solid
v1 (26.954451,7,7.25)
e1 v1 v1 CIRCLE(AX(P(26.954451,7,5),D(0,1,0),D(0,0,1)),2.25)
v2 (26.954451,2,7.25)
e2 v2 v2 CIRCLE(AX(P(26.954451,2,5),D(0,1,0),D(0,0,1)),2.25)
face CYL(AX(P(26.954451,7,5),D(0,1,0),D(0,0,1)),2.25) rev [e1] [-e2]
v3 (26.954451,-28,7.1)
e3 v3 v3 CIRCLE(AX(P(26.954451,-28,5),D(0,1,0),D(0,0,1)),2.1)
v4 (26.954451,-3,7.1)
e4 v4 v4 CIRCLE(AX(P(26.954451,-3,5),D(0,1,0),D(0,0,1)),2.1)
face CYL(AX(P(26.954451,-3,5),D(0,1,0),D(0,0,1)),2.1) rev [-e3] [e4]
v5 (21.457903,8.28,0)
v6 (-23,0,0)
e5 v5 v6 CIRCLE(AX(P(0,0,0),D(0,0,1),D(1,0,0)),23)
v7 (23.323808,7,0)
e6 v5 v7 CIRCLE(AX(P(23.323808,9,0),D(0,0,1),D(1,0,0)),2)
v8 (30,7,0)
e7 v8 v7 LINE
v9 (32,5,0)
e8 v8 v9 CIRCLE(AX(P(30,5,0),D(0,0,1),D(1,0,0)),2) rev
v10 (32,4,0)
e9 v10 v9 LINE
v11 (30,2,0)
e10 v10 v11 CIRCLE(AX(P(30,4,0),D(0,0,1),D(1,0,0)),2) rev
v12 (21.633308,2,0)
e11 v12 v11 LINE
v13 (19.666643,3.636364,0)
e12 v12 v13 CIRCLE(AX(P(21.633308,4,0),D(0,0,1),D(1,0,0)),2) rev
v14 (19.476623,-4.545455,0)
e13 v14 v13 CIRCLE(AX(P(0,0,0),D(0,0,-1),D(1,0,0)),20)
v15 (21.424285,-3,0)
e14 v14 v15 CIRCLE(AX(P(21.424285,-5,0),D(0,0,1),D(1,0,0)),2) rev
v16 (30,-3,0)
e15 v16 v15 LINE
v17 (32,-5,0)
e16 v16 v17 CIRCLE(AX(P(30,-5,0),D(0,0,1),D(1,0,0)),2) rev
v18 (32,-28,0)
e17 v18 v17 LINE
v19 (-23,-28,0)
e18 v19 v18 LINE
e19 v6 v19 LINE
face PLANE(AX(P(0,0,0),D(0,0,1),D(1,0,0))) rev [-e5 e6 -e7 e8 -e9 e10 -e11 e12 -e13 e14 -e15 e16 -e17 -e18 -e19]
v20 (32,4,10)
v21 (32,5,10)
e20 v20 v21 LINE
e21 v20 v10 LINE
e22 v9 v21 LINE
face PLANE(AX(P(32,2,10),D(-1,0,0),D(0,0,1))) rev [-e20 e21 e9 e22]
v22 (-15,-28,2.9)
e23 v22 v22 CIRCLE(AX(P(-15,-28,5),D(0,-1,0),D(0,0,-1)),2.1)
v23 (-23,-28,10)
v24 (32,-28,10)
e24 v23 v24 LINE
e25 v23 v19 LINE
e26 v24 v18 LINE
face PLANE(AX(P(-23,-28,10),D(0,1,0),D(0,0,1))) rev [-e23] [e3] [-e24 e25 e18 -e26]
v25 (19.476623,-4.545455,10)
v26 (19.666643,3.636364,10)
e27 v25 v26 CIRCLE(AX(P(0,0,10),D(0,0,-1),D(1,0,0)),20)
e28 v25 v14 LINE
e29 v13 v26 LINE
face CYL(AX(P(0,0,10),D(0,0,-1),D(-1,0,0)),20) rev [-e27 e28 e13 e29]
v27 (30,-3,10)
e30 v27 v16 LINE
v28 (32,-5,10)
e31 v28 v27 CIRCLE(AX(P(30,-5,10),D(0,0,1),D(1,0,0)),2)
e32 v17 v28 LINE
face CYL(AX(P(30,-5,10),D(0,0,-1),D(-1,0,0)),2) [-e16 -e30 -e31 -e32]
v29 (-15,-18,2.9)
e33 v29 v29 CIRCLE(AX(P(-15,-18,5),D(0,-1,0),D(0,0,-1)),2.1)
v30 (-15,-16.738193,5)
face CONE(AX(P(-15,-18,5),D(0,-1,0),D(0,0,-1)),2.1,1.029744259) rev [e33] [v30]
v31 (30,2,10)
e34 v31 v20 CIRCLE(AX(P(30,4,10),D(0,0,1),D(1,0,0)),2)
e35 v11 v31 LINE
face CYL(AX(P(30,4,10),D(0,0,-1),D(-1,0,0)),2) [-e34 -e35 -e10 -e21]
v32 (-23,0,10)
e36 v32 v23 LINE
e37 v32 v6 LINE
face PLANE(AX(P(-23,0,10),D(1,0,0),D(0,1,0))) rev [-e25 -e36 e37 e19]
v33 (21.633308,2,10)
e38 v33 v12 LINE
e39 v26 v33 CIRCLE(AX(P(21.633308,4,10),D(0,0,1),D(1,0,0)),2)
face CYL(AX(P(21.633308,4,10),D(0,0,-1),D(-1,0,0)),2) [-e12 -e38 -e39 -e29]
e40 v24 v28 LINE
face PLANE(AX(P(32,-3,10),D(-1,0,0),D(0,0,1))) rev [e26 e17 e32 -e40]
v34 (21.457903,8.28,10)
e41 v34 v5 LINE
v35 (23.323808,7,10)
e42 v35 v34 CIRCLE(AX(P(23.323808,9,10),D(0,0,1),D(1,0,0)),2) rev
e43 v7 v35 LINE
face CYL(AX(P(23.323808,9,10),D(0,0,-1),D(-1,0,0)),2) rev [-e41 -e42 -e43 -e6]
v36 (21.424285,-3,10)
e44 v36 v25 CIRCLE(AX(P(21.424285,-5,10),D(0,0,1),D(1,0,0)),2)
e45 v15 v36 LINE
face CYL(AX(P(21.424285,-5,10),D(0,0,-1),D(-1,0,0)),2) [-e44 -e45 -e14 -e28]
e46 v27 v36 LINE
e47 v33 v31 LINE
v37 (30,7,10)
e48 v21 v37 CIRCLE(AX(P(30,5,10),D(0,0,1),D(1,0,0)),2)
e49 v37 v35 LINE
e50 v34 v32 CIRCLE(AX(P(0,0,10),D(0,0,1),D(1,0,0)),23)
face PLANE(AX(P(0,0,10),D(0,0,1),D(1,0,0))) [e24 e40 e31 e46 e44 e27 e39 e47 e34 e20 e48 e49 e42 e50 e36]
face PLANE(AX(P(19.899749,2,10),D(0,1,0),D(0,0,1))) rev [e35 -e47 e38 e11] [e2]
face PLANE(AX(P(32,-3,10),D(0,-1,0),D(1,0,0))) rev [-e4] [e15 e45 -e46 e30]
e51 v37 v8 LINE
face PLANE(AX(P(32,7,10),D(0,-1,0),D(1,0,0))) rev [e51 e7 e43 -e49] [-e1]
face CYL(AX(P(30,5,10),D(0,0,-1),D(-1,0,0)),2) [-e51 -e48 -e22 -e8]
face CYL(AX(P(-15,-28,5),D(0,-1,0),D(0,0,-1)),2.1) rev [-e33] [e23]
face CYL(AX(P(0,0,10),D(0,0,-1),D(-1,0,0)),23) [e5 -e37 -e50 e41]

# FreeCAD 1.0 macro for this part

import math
import FreeCAD as App
import Part
import Sketcher
from FreeCAD import Vector
Q = App.Units.Quantity


def edges_at(feature, points):
    """Names of the edges that pass closest to the given points."""
    edges = feature.Shape.Edges
    near = lambda p: min(range(len(edges)), key=lambda i: edges[i].distToShape(Part.Vertex(*p))[0])
    return sorted({f"Edge{near(p) + 1}" for p in points})

doc = App.newDocument("Part")
params = doc.addObject("Spreadsheet::Sheet", "Params")
for row, (alias, value) in enumerate([
    ("sketch1_radius", "20 mm"),
    ("sketch1_radius2", "23 mm"),
    ("sketch1_width", "55 mm"),
    ("sketch1_height", "5 mm"),
    ("sketch1_height2", "28 mm"),
    ("pad1_length", "10 mm"),
    ("fillet_radius", "2 mm"),
    ("sketch2_diameter", "4.5 mm"),
    ("hole_diameter", "4.5 mm"),
    ("hole_depth", "5 mm"),
    ("sketch3_diameter", "4.2 mm"),
    ("hole2_diameter", "4.2 mm"),
    ("sketch4_diameter", "4.2 mm"),
    ("hole3_diameter", "4.2 mm"),
    ("hole3_depth", "10 mm"),
], start=1):
    params.set(f"A{row}", alias)
    params.set(f"B{row}", "=" + value)
    params.setAlias(f"B{row}", alias)

body = doc.addObject("PartDesign::Body", "Body")

# Sketch on XY plane
sketch1 = doc.addObject("Sketcher::SketchObject", "Sketch")
body.addObject(sketch1)
sketch1.AttachmentSupport = (doc.XY_Plane, [""])
sketch1.MapMode = "FlatFace"
sketch1.addGeometry([
    Part.LineSegment(Vector(32, -3, 0), Vector(20, -3, 0)),  # 0
    Part.ArcOfCircle(Part.Circle(Vector(0, 0, 0), Vector(0, 0, 1), 20), math.radians(6), math.radians(351)),  # 1
    Part.LineSegment(Vector(20, 2, 0), Vector(32, 2, 0)),  # 2
    Part.LineSegment(Vector(32, 2, 0), Vector(32, 7, 0)),  # 3
    Part.LineSegment(Vector(32, 7, 0), Vector(22, 7, 0)),  # 4
    Part.ArcOfCircle(Part.Circle(Vector(0, 0, 0), Vector(0, 0, 1), 23), math.radians(18), math.radians(180)),  # 5
    Part.LineSegment(Vector(-23, 0, 0), Vector(-23, -28, 0)),  # 6
    Part.LineSegment(Vector(-23, -28, 0), Vector(32, -28, 0)),  # 7
    Part.LineSegment(Vector(32, -28, 0), Vector(32, -3, 0)),  # 8
], False)
sketch1.addConstraint([
    Sketcher.Constraint("Coincident", 0, 2, 1, 2),
    Sketcher.Constraint("Coincident", 1, 1, 2, 1),
    Sketcher.Constraint("Coincident", 2, 2, 3, 1),
    Sketcher.Constraint("Coincident", 3, 2, 4, 1),
    Sketcher.Constraint("Coincident", 4, 2, 5, 1),
    Sketcher.Constraint("Tangent", 5, 2, 6, 1),
    Sketcher.Constraint("Coincident", 6, 2, 7, 1),
    Sketcher.Constraint("Coincident", 7, 2, 8, 1),
    Sketcher.Constraint("Coincident", 8, 2, 0, 1),
    Sketcher.Constraint("Horizontal", 0),
    Sketcher.Constraint("Horizontal", 2),
    Sketcher.Constraint("Vertical", 3),
    Sketcher.Constraint("Horizontal", 4),
    Sketcher.Constraint("Vertical", 6),
    Sketcher.Constraint("Horizontal", 7),
    Sketcher.Constraint("Vertical", 8),
    Sketcher.Constraint("Coincident", 1, 3, -1, 1),
    Sketcher.Constraint("Coincident", 5, 3, -1, 1),
    Sketcher.Constraint("Vertical", 3, 2, 7, 2),
    Sketcher.Constraint("Radius", 1, Q("20 mm")),
    Sketcher.Constraint("Radius", 5, Q("23 mm")),
    Sketcher.Constraint("DistanceX", 7, 1, 7, 2, Q("55 mm")),
    Sketcher.Constraint("DistanceY", 3, 1, 3, 2, Q("5 mm")),
    Sketcher.Constraint("DistanceY", 6, 2, 6, 1, Q("28 mm")),
    Sketcher.Constraint("DistanceY", 8, 1, 8, 2, Q("25 mm")),
    Sketcher.Constraint("DistanceY", -1, 1, 1, 1, Q("2 mm")),
])
sketch1.setExpression("Constraints[19]", "Params.sketch1_radius")
sketch1.setExpression("Constraints[20]", "Params.sketch1_radius2")
sketch1.setExpression("Constraints[21]", "Params.sketch1_width")
sketch1.setExpression("Constraints[22]", "Params.sketch1_height")
sketch1.setExpression("Constraints[23]", "Params.sketch1_height2")
pad1 = doc.addObject("PartDesign::Pad", "Pad")
body.addObject(pad1)
pad1.Profile = sketch1
pad1.setExpression("Length", "Params.pad1_length")
doc.recompute()

fillet = doc.addObject("PartDesign::Fillet", "Fillet")
body.addObject(fillet)
fillet.Base = (pad1, edges_at(pad1, [
    (21.909, 7, 5),
    (32, 7, 5),
    (32, 2, 5),
    (19.9, 2, 5),
    (19.774, -3, 5),
    (32, -3, 5),
]))
fillet.setExpression("Radius", "Params.fillet_radius")

# Sketch on XZ plane
sketch2 = doc.addObject("Sketcher::SketchObject", "Sketch001")
body.addObject(sketch2)
sketch2.AttachmentSupport = (doc.XZ_Plane, [""])
sketch2.MapMode = "FlatFace"
sketch2.AttachmentOffset = App.Placement(Vector(0, 0, -7), App.Rotation())
sketch2.addGeometry(Part.Circle(Vector(27, 5, 0), Vector(0, 0, 1), 2.2), False)
sketch2.addConstraint([
    Sketcher.Constraint("Diameter", 0, Q("4.5 mm")),
    Sketcher.Constraint("DistanceY", -1, 1, 0, 3, Q("5 mm")),
    Sketcher.Constraint("DistanceX", -1, 1, 0, 3, Q("26.954451 mm")),
])
sketch2.setExpression("Constraints[0]", "Params.sketch2_diameter")
doc.recompute()
hole = doc.addObject("PartDesign::Hole", "Hole")
body.addObject(hole)
hole.Profile = sketch2
hole.ThreadType = "None"
hole.setExpression("Diameter", "Params.hole_diameter")
hole.DepthType = "Dimension"
hole.setExpression("Depth", "Params.hole_depth")
hole.DrillPoint = "Flat"
hole.Reversed = True

# Sketch on XZ plane
sketch3 = doc.addObject("Sketcher::SketchObject", "Sketch002")
body.addObject(sketch3)
sketch3.AttachmentSupport = (doc.XZ_Plane, [""])
sketch3.MapMode = "FlatFace"
sketch3.AttachmentOffset = App.Placement(Vector(0, 0, 3), App.Rotation())
sketch3.addGeometry(Part.Circle(Vector(27, 5, 0), Vector(0, 0, 1), 2.1), False)
sketch3.addConstraint([
    Sketcher.Constraint("Diameter", 0, Q("4.2 mm")),
    Sketcher.Constraint("DistanceY", -1, 1, 0, 3, Q("5 mm")),
    Sketcher.Constraint("DistanceX", -1, 1, 0, 3, Q("26.954451 mm")),
])
sketch3.setExpression("Constraints[0]", "Params.sketch3_diameter")
doc.recompute()
hole2 = doc.addObject("PartDesign::Hole", "Hole001")
body.addObject(hole2)
hole2.Profile = sketch3
hole2.ThreadType = "None"
hole2.setExpression("Diameter", "Params.hole2_diameter")
hole2.DepthType = "ThroughAll"
hole2.Reversed = True

# Sketch on XZ plane
sketch4 = doc.addObject("Sketcher::SketchObject", "Sketch003")
body.addObject(sketch4)
sketch4.AttachmentSupport = (doc.XZ_Plane, [""])
sketch4.MapMode = "FlatFace"
sketch4.AttachmentOffset = App.Placement(Vector(0, 0, 28), App.Rotation())
sketch4.addGeometry(Part.Circle(Vector(-15, 5, 0), Vector(0, 0, 1), 2.1), False)
sketch4.addConstraint([
    Sketcher.Constraint("Diameter", 0, Q("4.2 mm")),
    Sketcher.Constraint("DistanceX", 0, 3, -1, 1, Q("15 mm")),
    Sketcher.Constraint("DistanceY", -1, 1, 0, 3, Q("5 mm")),
])
sketch4.setExpression("Constraints[0]", "Params.sketch4_diameter")
doc.recompute()
hole3 = doc.addObject("PartDesign::Hole", "Hole002")
body.addObject(hole3)
hole3.Profile = sketch4
hole3.ThreadType = "None"
hole3.setExpression("Diameter", "Params.hole3_diameter")
hole3.DepthType = "Dimension"
hole3.setExpression("Depth", "Params.hole3_depth")
hole3.DrillPoint = "Angled"
hole3.DrillPointAngle = 118

doc.recompute()
